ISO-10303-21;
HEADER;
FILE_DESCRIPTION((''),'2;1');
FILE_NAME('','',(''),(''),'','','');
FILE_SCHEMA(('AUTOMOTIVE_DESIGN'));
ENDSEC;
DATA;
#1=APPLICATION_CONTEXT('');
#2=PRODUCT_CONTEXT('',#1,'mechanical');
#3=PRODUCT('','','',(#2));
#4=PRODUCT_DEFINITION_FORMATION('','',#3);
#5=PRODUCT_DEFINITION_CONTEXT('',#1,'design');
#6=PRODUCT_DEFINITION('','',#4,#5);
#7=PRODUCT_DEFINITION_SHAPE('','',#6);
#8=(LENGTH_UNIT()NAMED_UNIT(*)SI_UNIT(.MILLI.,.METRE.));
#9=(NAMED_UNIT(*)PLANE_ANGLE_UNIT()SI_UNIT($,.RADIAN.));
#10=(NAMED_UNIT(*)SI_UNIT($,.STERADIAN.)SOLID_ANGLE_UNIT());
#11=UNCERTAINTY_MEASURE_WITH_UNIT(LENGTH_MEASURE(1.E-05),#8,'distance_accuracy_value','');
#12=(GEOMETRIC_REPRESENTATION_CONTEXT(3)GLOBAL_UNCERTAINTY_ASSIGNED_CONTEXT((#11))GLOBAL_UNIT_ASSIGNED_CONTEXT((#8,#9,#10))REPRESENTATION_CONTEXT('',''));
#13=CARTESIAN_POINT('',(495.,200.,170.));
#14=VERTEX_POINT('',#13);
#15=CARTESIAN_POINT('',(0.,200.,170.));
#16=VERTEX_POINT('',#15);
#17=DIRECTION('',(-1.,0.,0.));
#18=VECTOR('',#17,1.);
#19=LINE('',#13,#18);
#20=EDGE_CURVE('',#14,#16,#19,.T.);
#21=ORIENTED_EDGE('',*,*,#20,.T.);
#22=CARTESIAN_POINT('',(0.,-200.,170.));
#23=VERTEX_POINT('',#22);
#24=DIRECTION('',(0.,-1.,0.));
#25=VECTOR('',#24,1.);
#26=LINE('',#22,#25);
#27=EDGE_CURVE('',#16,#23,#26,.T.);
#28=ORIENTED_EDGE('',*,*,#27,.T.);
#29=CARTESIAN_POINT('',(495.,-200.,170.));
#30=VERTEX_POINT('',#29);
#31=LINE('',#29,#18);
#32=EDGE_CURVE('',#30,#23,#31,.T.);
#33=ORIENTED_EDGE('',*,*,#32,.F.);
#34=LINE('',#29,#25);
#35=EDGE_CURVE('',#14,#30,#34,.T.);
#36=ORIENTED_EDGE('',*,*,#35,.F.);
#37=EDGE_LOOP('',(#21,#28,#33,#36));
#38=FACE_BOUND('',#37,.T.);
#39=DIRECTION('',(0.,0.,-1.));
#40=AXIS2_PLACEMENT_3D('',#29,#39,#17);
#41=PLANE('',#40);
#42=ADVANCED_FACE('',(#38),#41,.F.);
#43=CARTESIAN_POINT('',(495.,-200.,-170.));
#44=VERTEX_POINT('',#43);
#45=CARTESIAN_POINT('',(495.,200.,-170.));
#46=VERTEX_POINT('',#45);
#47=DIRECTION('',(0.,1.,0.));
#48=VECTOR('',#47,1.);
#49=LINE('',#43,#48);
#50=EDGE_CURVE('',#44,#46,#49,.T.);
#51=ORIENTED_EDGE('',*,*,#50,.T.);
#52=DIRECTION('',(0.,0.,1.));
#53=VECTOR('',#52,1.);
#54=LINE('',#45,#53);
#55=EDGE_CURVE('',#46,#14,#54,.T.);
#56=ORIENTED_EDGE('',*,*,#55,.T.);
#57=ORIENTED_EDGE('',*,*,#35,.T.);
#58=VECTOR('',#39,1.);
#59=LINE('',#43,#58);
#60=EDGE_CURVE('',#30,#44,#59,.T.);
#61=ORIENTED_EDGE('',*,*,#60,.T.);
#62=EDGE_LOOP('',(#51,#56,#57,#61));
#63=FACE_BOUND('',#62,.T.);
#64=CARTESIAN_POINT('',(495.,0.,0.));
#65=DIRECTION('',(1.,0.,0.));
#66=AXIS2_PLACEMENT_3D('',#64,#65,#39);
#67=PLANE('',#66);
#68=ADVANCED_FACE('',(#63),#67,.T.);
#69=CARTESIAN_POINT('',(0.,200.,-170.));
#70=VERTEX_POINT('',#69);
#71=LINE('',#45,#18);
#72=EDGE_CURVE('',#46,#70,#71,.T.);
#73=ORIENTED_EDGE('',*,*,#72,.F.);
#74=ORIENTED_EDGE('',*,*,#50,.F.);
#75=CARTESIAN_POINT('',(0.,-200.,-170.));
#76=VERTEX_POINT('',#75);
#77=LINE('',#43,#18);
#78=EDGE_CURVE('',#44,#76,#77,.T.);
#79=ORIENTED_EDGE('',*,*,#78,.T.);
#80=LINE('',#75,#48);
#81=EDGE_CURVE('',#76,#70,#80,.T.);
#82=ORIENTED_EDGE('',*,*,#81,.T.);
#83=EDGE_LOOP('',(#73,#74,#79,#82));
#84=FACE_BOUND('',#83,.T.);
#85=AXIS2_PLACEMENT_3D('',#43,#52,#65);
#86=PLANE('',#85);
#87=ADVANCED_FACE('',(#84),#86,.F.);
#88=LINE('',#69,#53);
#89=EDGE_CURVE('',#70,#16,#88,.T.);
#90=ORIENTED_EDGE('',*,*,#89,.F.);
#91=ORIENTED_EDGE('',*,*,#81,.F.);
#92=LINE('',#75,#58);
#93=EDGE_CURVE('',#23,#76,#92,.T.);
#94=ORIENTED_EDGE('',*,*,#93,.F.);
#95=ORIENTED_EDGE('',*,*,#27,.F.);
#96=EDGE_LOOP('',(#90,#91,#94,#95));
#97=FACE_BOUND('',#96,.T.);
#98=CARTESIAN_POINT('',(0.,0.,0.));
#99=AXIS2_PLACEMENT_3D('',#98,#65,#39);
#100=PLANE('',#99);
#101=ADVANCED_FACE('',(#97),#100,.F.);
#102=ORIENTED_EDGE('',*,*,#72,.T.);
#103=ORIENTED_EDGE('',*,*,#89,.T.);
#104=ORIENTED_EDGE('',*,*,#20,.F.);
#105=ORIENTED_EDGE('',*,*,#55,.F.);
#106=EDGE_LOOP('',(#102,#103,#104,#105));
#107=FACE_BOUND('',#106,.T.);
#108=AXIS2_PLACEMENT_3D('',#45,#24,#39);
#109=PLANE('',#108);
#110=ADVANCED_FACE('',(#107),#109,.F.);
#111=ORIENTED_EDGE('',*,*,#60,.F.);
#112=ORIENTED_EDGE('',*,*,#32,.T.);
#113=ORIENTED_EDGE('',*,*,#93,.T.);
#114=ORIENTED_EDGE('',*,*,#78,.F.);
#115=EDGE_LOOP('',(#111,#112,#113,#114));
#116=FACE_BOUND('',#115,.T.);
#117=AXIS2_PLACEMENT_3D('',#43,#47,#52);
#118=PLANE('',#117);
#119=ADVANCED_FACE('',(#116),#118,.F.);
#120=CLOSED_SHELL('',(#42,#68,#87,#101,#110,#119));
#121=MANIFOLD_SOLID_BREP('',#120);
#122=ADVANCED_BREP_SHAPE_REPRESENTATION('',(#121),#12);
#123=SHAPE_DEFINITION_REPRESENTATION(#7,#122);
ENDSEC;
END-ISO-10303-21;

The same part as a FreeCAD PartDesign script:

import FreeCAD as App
import Part
import Sketcher


def add_polygon(sketch, points):
    """Adds a closed chain of lines whose ends are joined by coincident constraints."""
    first, n = sketch.GeometryCount, len(points)
    for a, b in zip(points, points[1:] + points[:1]):
        sketch.addGeometry(Part.LineSegment(App.Vector(*a, 0), App.Vector(*b, 0)), False)
    for i in range(n):
        sketch.addConstraint(Sketcher.Constraint("Coincident", first + i, 2, first + (i + 1) % n, 1))

doc = App.newDocument("Part")
params = doc.addObject("Spreadsheet::Sheet", "Params")
for row, (alias, value) in enumerate([
    ("sketch1_width", "400 mm"),
    ("sketch1_height", "340 mm"),
    ("pad1_length", "495 mm"),
], start=1):
    params.set(f"A{row}", alias)
    params.set(f"B{row}", "=" + value)
    params.setAlias(f"B{row}", alias)

body = doc.addObject("PartDesign::Body", "Body")

# Sketch on YZ plane
sketch1 = body.newObject("Sketcher::SketchObject", "Sketch")
sketch1.AttachmentSupport = (doc.getObject("YZ_Plane"), [""])
sketch1.MapMode = "FlatFace"
add_polygon(sketch1, [(200, 170), (-200, 170), (-200, -170), (200, -170)])  # lines 0-3
sketch1.addConstraint([
    Sketcher.Constraint("Horizontal", 0),
    Sketcher.Constraint("Vertical", 1),
    Sketcher.Constraint("Horizontal", 2),
    Sketcher.Constraint("Vertical", 3),
    Sketcher.Constraint("Symmetric", 0, 2, 2, 2, -1, 1),
    Sketcher.Constraint("DistanceX", 0, 2, 0, 1, 400.0),
    Sketcher.Constraint("DistanceY", 1, 2, 1, 1, 340.0),
])
sketch1.setExpression("Constraints[9]", "Params.sketch1_width")
sketch1.setExpression("Constraints[10]", "Params.sketch1_height")
pad1 = body.newObject("PartDesign::Pad", "Pad")
pad1.Profile = sketch1
pad1.setExpression("Length", "Params.pad1_length")

doc.recompute()
